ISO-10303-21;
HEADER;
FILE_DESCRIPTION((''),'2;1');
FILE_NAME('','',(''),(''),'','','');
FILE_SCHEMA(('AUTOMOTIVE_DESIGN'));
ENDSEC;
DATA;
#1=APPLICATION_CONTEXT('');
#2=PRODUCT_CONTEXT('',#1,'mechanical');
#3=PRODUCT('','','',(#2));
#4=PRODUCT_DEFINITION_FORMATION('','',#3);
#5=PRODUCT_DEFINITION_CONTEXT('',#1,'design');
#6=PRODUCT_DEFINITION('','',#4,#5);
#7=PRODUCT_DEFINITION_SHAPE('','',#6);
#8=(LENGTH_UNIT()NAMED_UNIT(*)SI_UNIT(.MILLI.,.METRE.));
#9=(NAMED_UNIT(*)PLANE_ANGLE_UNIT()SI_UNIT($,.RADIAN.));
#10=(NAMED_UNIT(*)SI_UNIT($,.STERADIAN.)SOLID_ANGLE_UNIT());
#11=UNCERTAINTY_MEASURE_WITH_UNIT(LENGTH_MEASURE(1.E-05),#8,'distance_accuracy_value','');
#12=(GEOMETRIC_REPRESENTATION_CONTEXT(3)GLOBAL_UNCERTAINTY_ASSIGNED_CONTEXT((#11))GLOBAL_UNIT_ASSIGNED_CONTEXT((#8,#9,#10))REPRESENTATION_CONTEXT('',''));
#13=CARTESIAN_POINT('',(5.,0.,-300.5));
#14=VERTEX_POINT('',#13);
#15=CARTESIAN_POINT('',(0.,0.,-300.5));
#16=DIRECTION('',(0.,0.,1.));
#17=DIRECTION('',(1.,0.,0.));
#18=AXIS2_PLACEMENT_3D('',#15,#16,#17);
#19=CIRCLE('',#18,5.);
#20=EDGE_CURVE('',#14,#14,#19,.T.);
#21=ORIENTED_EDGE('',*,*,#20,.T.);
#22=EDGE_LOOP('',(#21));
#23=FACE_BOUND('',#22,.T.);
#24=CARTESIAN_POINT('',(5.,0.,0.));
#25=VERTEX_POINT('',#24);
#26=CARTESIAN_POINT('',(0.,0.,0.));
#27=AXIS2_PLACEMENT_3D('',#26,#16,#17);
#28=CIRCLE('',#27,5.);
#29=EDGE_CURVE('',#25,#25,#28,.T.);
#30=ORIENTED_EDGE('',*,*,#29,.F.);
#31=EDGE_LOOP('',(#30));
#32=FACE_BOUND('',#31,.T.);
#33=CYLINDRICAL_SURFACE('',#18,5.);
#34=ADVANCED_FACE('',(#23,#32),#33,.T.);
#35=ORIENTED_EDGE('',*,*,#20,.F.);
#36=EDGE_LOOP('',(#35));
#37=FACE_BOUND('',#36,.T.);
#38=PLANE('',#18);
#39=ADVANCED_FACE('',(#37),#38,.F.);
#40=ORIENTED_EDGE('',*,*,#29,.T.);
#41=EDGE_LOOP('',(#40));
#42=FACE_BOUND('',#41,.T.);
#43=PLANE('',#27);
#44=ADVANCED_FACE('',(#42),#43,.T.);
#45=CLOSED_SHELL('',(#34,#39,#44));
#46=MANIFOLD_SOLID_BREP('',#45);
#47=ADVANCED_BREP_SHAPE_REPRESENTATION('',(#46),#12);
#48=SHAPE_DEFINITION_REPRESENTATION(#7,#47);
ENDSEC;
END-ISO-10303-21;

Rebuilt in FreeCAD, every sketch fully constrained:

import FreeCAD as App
import Part
import Sketcher
Q = App.Units.Quantity

doc = App.newDocument("Part")
body = doc.addObject("PartDesign::Body", "Body")

# Sketch on XY plane
sketch1 = body.newObject("Sketcher::SketchObject", "Sketch")
sketch1.AttachmentSupport = (doc.getObject("XY_Plane"), [""])
sketch1.MapMode = "FlatFace"
sketch1.addGeometry(Part.Circle(App.Vector(0, 0, 0), App.Vector(0, 0, 1), 5), False)
sketch1.addConstraint([
    Sketcher.Constraint("Coincident", 0, 3, -1, 1),
    Sketcher.Constraint("Diameter", 0, Q("10 mm")),
])
pad1 = body.newObject("PartDesign::Pad", "Pad")
pad1.Profile = sketch1
pad1.Length = 300.5
pad1.Reversed = True

doc.recompute()
